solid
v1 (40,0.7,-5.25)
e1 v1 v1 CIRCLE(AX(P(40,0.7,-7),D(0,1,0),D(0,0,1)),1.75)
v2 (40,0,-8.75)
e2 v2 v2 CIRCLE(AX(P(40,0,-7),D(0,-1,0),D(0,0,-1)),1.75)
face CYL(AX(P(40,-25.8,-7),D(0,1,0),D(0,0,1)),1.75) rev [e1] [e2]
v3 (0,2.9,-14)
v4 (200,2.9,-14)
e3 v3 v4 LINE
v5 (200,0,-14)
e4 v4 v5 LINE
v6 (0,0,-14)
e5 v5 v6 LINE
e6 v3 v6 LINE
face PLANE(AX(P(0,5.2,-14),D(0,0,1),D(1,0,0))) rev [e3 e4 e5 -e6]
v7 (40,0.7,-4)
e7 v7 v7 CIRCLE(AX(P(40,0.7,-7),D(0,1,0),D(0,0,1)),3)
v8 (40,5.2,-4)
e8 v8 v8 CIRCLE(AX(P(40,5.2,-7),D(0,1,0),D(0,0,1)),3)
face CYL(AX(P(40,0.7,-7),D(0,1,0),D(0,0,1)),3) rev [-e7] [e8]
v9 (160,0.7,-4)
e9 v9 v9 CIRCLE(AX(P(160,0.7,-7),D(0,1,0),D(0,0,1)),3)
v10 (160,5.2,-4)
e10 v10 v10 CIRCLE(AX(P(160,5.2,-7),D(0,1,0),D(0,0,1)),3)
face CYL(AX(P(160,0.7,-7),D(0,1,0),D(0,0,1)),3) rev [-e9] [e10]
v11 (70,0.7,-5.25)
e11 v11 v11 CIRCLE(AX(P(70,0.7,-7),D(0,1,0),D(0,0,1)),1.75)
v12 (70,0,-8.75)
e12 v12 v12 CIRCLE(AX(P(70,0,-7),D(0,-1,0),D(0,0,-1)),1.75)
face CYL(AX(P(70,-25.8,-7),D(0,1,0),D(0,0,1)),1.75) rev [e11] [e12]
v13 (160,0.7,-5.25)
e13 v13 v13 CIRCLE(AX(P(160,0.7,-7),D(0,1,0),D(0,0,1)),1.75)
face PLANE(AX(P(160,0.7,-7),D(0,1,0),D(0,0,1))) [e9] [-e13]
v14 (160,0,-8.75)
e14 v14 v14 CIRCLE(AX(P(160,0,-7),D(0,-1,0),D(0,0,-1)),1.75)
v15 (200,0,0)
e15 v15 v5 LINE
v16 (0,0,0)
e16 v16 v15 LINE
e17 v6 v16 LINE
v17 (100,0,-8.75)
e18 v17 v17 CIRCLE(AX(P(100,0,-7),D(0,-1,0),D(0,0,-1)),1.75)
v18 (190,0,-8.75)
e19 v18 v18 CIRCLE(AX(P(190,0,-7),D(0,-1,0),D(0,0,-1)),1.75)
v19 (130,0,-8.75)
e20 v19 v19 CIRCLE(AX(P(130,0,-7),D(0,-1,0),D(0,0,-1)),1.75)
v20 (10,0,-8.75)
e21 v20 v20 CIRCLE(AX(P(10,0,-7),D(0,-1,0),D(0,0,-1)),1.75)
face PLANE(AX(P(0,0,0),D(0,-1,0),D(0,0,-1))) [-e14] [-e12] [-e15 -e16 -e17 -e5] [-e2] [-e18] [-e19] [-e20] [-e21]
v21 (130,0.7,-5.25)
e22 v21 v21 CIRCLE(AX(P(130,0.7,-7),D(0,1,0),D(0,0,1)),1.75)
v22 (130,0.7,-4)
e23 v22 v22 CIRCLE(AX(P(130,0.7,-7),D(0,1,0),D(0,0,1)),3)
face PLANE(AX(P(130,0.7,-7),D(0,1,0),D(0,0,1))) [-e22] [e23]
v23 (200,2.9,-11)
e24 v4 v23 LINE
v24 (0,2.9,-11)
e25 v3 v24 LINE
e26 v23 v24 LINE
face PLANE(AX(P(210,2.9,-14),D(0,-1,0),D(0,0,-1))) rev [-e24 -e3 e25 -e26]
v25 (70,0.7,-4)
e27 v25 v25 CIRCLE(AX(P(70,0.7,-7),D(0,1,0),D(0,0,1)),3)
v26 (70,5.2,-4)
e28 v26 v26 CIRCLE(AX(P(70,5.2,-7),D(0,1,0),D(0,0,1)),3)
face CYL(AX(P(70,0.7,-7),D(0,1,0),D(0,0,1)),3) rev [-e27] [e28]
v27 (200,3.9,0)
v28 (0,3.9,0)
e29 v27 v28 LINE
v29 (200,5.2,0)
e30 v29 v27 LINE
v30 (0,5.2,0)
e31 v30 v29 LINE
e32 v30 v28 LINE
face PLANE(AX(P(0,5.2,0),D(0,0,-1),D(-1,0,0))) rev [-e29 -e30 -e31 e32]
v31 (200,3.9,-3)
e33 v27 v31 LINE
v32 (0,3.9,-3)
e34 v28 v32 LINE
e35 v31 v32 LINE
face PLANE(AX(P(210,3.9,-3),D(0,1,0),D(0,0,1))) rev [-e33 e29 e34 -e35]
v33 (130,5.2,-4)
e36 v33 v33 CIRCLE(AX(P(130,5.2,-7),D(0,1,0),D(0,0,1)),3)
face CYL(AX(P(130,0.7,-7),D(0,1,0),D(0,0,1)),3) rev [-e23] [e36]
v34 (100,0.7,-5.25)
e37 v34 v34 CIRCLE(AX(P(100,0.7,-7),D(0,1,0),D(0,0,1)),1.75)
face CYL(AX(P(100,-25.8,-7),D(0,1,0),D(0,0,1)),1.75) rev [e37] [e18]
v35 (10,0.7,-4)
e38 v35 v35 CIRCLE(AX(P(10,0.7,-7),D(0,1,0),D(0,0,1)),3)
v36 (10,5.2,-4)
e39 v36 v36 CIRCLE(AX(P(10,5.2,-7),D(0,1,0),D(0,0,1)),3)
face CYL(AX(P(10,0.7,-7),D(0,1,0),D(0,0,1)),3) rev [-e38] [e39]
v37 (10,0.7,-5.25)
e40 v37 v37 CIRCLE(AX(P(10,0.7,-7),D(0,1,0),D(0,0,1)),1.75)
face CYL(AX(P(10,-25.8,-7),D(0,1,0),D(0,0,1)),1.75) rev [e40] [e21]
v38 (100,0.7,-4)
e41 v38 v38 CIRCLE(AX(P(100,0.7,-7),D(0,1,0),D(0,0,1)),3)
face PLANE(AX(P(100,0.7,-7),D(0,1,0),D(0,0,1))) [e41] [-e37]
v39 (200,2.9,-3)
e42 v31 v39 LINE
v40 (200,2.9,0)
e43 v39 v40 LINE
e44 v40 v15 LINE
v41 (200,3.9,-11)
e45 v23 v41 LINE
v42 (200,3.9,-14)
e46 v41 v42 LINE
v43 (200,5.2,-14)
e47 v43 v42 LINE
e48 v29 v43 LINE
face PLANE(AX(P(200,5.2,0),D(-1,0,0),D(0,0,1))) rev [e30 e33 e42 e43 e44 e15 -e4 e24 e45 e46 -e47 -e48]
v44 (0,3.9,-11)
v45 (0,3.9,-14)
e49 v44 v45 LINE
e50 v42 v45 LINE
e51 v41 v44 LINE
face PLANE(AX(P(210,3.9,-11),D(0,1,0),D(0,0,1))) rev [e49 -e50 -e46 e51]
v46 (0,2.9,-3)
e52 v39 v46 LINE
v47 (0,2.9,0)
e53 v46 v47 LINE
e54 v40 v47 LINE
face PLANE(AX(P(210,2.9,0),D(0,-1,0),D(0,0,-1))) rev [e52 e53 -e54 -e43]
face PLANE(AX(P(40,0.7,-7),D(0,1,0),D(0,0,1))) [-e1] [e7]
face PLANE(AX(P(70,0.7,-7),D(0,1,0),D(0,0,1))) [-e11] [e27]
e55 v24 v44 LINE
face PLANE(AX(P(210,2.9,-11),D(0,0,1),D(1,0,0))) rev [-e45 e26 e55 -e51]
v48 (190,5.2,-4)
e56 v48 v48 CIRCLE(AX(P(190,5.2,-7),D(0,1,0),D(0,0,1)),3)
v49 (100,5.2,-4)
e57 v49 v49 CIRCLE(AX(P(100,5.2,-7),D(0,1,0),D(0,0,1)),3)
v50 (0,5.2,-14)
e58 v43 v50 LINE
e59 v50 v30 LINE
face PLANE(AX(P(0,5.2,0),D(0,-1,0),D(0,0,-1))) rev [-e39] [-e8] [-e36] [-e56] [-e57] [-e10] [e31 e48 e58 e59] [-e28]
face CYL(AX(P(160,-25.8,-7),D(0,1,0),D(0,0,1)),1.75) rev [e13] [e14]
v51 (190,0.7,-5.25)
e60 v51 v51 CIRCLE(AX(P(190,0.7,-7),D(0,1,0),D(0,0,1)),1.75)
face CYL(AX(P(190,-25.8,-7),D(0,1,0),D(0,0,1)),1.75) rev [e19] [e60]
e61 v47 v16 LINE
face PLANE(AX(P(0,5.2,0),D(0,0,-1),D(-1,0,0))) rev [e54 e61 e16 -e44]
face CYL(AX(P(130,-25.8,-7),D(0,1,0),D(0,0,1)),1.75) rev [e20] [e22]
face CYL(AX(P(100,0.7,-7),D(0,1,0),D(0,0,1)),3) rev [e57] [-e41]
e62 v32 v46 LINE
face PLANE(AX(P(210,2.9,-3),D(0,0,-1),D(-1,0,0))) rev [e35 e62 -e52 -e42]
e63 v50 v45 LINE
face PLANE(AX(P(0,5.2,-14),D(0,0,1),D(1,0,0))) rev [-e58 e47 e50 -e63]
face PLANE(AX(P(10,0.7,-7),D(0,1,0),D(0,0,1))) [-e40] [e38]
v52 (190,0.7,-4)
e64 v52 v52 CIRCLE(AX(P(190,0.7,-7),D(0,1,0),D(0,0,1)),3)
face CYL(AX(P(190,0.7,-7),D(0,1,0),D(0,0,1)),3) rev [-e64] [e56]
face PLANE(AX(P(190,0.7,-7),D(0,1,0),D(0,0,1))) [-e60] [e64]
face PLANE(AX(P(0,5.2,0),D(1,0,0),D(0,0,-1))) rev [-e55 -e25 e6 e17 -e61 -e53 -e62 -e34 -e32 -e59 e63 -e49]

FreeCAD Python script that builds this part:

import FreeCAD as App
import Part
import Sketcher
from FreeCAD import Vector

doc = App.newDocument("Part")
body = doc.addObject("PartDesign::Body", "Body")

# Sketch on XZ plane
sketch1 = doc.addObject("Sketcher::SketchObject", "Sketch")
body.addObject(sketch1)
sketch1.AttachmentSupport = (doc.XZ_Plane, [""])
sketch1.MapMode = "FlatFace"
sketch1.addGeometry(Part.LineSegment(Vector(0, -14, 0), Vector(0, 0, 0)), False)
sketch1.addGeometry(Part.LineSegment(Vector(0, 0, 0), Vector(200, 0, 0)), False)
sketch1.addGeometry(Part.LineSegment(Vector(200, 0, 0), Vector(200, -14, 0)), False)
sketch1.addGeometry(Part.LineSegment(Vector(200, -14, 0), Vector(0, -14, 0)), False)
sketch1.addConstraint(Sketcher.Constraint("Coincident", 0, 2, 1, 1))
sketch1.addConstraint(Sketcher.Constraint("Coincident", 1, 2, 2, 1))
sketch1.addConstraint(Sketcher.Constraint("Coincident", 2, 2, 3, 1))
sketch1.addConstraint(Sketcher.Constraint("Coincident", 3, 2, 0, 1))
sketch1.addConstraint(Sketcher.Constraint("Vertical", 0))
sketch1.addConstraint(Sketcher.Constraint("Horizontal", 1))
sketch1.addConstraint(Sketcher.Constraint("Vertical", 2))
sketch1.addConstraint(Sketcher.Constraint("Horizontal", 3))
sketch1.addConstraint(Sketcher.Constraint("Coincident", 0, 2, -1, 1))
sketch1.addConstraint(Sketcher.Constraint("DistanceX", 1, 1, 1, 2, 200.0))
sketch1.addConstraint(Sketcher.Constraint("DistanceY", 0, 1, 0, 2, 14.0))
pad1 = doc.addObject("PartDesign::Pad", "Pad")
body.addObject(pad1)
pad1.Profile = sketch1
pad1.Length = 5.2
pad1.Reversed = True

# Sketch on YZ plane
sketch2 = doc.addObject("Sketcher::SketchObject", "Sketch001")
body.addObject(sketch2)
sketch2.AttachmentSupport = (doc.YZ_Plane, [""])
sketch2.MapMode = "FlatFace"
sketch2.addGeometry(Part.LineSegment(Vector(3.9, -14, 0), Vector(2.9, -14, 0)), False)
sketch2.addGeometry(Part.LineSegment(Vector(2.9, -14, 0), Vector(2.9, -11, 0)), False)
sketch2.addGeometry(Part.LineSegment(Vector(2.9, -11, 0), Vector(3.9, -11, 0)), False)
sketch2.addGeometry(Part.LineSegment(Vector(3.9, -11, 0), Vector(3.9, -14, 0)), False)
sketch2.addGeometry(Part.LineSegment(Vector(3.9, -3, 0), Vector(2.9, -3, 0)), False)
sketch2.addGeometry(Part.LineSegment(Vector(2.9, -3, 0), Vector(2.9, 0, 0)), False)
sketch2.addGeometry(Part.LineSegment(Vector(2.9, 0, 0), Vector(3.9, 0, 0)), False)
sketch2.addGeometry(Part.LineSegment(Vector(3.9, 0, 0), Vector(3.9, -3, 0)), False)
sketch2.addConstraint(Sketcher.Constraint("Coincident", 0, 2, 1, 1))
sketch2.addConstraint(Sketcher.Constraint("Coincident", 1, 2, 2, 1))
sketch2.addConstraint(Sketcher.Constraint("Coincident", 2, 2, 3, 1))
sketch2.addConstraint(Sketcher.Constraint("Coincident", 3, 2, 0, 1))
sketch2.addConstraint(Sketcher.Constraint("Coincident", 4, 2, 5, 1))
sketch2.addConstraint(Sketcher.Constraint("Coincident", 5, 2, 6, 1))
sketch2.addConstraint(Sketcher.Constraint("Coincident", 6, 2, 7, 1))
sketch2.addConstraint(Sketcher.Constraint("Coincident", 7, 2, 4, 1))
sketch2.addConstraint(Sketcher.Constraint("Horizontal", 0))
sketch2.addConstraint(Sketcher.Constraint("Vertical", 1))
sketch2.addConstraint(Sketcher.Constraint("Horizontal", 2))
sketch2.addConstraint(Sketcher.Constraint("Vertical", 3))
sketch2.addConstraint(Sketcher.Constraint("Horizontal", 4))
sketch2.addConstraint(Sketcher.Constraint("Vertical", 5))
sketch2.addConstraint(Sketcher.Constraint("Horizontal", 6))
sketch2.addConstraint(Sketcher.Constraint("Vertical", 7))
sketch2.addConstraint(Sketcher.Constraint("PointOnObject", 5, 2, -1))
sketch2.addConstraint(Sketcher.Constraint("Vertical", 1, 2, 4, 2))
sketch2.addConstraint(Sketcher.Constraint("Vertical", 3, 2, 6, 2))
sketch2.addConstraint(Sketcher.Constraint("Equal", 3, 5))
sketch2.addConstraint(Sketcher.Constraint("DistanceX", 0, 2, 0, 1, 1.0))
sketch2.addConstraint(Sketcher.Constraint("DistanceY", 1, 1, 1, 2, 3.0))
sketch2.addConstraint(Sketcher.Constraint("DistanceY", 0, 2, -1, 1, 14.0))
sketch2.addConstraint(Sketcher.Constraint("DistanceX", -1, 1, 0, 2, 2.9))
pocket1 = doc.addObject("PartDesign::Pocket", "Pocket")
body.addObject(pocket1)
pocket1.Profile = sketch2
pocket1.Length = 210
pocket1.Reversed = True

# Sketch on XZ plane
sketch3 = doc.addObject("Sketcher::SketchObject", "Sketch002")
body.addObject(sketch3)
sketch3.AttachmentSupport = (doc.XZ_Plane, [""])
sketch3.MapMode = "FlatFace"
sketch3.AttachmentOffset = App.Placement(Vector(0, 0, -5.2), App.Rotation())
sketch3.addGeometry(Part.Circle(Vector(10, -7, 0), Vector(0, 0, 1), 1.8), False)
sketch3.addConstraint(Sketcher.Constraint("Diameter", 0, 3.5))
sketch3.addConstraint(Sketcher.Constraint("DistanceX", -1, 1, 0, 3, 10.0))
sketch3.addConstraint(Sketcher.Constraint("DistanceY", 0, 3, -1, 1, 7.0))
pocket2 = doc.addObject("PartDesign::Pocket", "Pocket001")
body.addObject(pocket2)
pocket2.Profile = sketch3
pocket2.Length = 31
pocket2.Reversed = True

# Sketch on XZ plane
sketch4 = doc.addObject("Sketcher::SketchObject", "Sketch003")
body.addObject(sketch4)
sketch4.AttachmentSupport = (doc.XZ_Plane, [""])
sketch4.MapMode = "FlatFace"
sketch4.AttachmentOffset = App.Placement(Vector(0, 0, -5.2), App.Rotation())
sketch4.addGeometry(Part.Circle(Vector(10, -7, 0), Vector(0, 0, 1), 3), False)
sketch4.addGeometry(Part.Circle(Vector(10, -7, 0), Vector(0, 0, 1), 1.8), False)
sketch4.addConstraint(Sketcher.Constraint("Coincident", 1, 3, 0, 3))
sketch4.addConstraint(Sketcher.Constraint("Diameter", 0, 6.0))
sketch4.addConstraint(Sketcher.Constraint("Diameter", 1, 3.5))
sketch4.addConstraint(Sketcher.Constraint("DistanceX", -1, 1, 0, 3, 10.0))
sketch4.addConstraint(Sketcher.Constraint("DistanceY", 0, 3, -1, 1, 7.0))
pocket3 = doc.addObject("PartDesign::Pocket", "Pocket002")
body.addObject(pocket3)
pocket3.Profile = sketch4
pocket3.Length = 4.5
pocket3.Reversed = True
doc.recompute()

linearpattern = doc.addObject("PartDesign::LinearPattern", "LinearPattern")
body.addObject(linearpattern)
linearpattern.Originals = [pocket2, pocket3]
linearpattern.Direction = (doc.X_Axis, [""])
linearpattern.Mode = "offset"
linearpattern.Offset = 30
linearpattern.Occurrences = 7
body.Tip = linearpattern

doc.recompute()
